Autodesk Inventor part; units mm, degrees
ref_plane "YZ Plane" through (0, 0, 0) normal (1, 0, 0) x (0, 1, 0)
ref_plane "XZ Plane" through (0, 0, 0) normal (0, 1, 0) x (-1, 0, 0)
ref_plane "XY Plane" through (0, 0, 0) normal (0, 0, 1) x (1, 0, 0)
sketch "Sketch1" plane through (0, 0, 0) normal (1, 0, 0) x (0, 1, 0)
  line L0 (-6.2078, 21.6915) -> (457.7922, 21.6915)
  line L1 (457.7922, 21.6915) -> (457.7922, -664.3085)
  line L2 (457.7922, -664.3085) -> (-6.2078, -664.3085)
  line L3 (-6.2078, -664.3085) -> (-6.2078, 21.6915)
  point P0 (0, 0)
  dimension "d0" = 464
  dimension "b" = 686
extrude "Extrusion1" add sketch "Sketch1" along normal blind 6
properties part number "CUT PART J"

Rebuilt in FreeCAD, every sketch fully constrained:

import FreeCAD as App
import Part
import Sketcher

doc = App.newDocument("Part")
body = doc.addObject("PartDesign::Body", "Body")

# Sketch on YZ plane
sketch1 = body.newObject("Sketcher::SketchObject", "Sketch")
sketch1.AttachmentSupport = (doc.getObject("YZ_Plane"), [""])
sketch1.MapMode = "FlatFace"
sketch1.addGeometry([
    Part.LineSegment(App.Vector(458, 22, 0), App.Vector(-6, 22, 0)),
    Part.LineSegment(App.Vector(-6, 22, 0), App.Vector(-6, -664, 0)),
    Part.LineSegment(App.Vector(-6, -664, 0), App.Vector(458, -664, 0)),
    Part.LineSegment(App.Vector(458, -664, 0), App.Vector(458, 22, 0)),
], False)
sketch1.addConstraint([
    Sketcher.Constraint("Coincident", 0, 2, 1, 1),
    Sketcher.Constraint("Coincident", 1, 2, 2, 1),
    Sketcher.Constraint("Coincident", 2, 2, 3, 1),
    Sketcher.Constraint("Coincident", 3, 2, 0, 1),
    Sketcher.Constraint("Horizontal", 0),
    Sketcher.Constraint("Vertical", 1),
    Sketcher.Constraint("Horizontal", 2),
    Sketcher.Constraint("Vertical", 3),
    Sketcher.Constraint("DistanceX", 0, 2, 0, 1, 464.0),
    Sketcher.Constraint("DistanceY", 1, 2, 1, 1, 686.0),
    Sketcher.Constraint("DistanceX", 0, 2, -1, 1, 6.2078),
    Sketcher.Constraint("DistanceY", -1, 1, 0, 2, 21.6915),
])
pad1 = body.newObject("PartDesign::Pad", "Pad")
pad1.Profile = sketch1
pad1.Length = 6

doc.recompute()
